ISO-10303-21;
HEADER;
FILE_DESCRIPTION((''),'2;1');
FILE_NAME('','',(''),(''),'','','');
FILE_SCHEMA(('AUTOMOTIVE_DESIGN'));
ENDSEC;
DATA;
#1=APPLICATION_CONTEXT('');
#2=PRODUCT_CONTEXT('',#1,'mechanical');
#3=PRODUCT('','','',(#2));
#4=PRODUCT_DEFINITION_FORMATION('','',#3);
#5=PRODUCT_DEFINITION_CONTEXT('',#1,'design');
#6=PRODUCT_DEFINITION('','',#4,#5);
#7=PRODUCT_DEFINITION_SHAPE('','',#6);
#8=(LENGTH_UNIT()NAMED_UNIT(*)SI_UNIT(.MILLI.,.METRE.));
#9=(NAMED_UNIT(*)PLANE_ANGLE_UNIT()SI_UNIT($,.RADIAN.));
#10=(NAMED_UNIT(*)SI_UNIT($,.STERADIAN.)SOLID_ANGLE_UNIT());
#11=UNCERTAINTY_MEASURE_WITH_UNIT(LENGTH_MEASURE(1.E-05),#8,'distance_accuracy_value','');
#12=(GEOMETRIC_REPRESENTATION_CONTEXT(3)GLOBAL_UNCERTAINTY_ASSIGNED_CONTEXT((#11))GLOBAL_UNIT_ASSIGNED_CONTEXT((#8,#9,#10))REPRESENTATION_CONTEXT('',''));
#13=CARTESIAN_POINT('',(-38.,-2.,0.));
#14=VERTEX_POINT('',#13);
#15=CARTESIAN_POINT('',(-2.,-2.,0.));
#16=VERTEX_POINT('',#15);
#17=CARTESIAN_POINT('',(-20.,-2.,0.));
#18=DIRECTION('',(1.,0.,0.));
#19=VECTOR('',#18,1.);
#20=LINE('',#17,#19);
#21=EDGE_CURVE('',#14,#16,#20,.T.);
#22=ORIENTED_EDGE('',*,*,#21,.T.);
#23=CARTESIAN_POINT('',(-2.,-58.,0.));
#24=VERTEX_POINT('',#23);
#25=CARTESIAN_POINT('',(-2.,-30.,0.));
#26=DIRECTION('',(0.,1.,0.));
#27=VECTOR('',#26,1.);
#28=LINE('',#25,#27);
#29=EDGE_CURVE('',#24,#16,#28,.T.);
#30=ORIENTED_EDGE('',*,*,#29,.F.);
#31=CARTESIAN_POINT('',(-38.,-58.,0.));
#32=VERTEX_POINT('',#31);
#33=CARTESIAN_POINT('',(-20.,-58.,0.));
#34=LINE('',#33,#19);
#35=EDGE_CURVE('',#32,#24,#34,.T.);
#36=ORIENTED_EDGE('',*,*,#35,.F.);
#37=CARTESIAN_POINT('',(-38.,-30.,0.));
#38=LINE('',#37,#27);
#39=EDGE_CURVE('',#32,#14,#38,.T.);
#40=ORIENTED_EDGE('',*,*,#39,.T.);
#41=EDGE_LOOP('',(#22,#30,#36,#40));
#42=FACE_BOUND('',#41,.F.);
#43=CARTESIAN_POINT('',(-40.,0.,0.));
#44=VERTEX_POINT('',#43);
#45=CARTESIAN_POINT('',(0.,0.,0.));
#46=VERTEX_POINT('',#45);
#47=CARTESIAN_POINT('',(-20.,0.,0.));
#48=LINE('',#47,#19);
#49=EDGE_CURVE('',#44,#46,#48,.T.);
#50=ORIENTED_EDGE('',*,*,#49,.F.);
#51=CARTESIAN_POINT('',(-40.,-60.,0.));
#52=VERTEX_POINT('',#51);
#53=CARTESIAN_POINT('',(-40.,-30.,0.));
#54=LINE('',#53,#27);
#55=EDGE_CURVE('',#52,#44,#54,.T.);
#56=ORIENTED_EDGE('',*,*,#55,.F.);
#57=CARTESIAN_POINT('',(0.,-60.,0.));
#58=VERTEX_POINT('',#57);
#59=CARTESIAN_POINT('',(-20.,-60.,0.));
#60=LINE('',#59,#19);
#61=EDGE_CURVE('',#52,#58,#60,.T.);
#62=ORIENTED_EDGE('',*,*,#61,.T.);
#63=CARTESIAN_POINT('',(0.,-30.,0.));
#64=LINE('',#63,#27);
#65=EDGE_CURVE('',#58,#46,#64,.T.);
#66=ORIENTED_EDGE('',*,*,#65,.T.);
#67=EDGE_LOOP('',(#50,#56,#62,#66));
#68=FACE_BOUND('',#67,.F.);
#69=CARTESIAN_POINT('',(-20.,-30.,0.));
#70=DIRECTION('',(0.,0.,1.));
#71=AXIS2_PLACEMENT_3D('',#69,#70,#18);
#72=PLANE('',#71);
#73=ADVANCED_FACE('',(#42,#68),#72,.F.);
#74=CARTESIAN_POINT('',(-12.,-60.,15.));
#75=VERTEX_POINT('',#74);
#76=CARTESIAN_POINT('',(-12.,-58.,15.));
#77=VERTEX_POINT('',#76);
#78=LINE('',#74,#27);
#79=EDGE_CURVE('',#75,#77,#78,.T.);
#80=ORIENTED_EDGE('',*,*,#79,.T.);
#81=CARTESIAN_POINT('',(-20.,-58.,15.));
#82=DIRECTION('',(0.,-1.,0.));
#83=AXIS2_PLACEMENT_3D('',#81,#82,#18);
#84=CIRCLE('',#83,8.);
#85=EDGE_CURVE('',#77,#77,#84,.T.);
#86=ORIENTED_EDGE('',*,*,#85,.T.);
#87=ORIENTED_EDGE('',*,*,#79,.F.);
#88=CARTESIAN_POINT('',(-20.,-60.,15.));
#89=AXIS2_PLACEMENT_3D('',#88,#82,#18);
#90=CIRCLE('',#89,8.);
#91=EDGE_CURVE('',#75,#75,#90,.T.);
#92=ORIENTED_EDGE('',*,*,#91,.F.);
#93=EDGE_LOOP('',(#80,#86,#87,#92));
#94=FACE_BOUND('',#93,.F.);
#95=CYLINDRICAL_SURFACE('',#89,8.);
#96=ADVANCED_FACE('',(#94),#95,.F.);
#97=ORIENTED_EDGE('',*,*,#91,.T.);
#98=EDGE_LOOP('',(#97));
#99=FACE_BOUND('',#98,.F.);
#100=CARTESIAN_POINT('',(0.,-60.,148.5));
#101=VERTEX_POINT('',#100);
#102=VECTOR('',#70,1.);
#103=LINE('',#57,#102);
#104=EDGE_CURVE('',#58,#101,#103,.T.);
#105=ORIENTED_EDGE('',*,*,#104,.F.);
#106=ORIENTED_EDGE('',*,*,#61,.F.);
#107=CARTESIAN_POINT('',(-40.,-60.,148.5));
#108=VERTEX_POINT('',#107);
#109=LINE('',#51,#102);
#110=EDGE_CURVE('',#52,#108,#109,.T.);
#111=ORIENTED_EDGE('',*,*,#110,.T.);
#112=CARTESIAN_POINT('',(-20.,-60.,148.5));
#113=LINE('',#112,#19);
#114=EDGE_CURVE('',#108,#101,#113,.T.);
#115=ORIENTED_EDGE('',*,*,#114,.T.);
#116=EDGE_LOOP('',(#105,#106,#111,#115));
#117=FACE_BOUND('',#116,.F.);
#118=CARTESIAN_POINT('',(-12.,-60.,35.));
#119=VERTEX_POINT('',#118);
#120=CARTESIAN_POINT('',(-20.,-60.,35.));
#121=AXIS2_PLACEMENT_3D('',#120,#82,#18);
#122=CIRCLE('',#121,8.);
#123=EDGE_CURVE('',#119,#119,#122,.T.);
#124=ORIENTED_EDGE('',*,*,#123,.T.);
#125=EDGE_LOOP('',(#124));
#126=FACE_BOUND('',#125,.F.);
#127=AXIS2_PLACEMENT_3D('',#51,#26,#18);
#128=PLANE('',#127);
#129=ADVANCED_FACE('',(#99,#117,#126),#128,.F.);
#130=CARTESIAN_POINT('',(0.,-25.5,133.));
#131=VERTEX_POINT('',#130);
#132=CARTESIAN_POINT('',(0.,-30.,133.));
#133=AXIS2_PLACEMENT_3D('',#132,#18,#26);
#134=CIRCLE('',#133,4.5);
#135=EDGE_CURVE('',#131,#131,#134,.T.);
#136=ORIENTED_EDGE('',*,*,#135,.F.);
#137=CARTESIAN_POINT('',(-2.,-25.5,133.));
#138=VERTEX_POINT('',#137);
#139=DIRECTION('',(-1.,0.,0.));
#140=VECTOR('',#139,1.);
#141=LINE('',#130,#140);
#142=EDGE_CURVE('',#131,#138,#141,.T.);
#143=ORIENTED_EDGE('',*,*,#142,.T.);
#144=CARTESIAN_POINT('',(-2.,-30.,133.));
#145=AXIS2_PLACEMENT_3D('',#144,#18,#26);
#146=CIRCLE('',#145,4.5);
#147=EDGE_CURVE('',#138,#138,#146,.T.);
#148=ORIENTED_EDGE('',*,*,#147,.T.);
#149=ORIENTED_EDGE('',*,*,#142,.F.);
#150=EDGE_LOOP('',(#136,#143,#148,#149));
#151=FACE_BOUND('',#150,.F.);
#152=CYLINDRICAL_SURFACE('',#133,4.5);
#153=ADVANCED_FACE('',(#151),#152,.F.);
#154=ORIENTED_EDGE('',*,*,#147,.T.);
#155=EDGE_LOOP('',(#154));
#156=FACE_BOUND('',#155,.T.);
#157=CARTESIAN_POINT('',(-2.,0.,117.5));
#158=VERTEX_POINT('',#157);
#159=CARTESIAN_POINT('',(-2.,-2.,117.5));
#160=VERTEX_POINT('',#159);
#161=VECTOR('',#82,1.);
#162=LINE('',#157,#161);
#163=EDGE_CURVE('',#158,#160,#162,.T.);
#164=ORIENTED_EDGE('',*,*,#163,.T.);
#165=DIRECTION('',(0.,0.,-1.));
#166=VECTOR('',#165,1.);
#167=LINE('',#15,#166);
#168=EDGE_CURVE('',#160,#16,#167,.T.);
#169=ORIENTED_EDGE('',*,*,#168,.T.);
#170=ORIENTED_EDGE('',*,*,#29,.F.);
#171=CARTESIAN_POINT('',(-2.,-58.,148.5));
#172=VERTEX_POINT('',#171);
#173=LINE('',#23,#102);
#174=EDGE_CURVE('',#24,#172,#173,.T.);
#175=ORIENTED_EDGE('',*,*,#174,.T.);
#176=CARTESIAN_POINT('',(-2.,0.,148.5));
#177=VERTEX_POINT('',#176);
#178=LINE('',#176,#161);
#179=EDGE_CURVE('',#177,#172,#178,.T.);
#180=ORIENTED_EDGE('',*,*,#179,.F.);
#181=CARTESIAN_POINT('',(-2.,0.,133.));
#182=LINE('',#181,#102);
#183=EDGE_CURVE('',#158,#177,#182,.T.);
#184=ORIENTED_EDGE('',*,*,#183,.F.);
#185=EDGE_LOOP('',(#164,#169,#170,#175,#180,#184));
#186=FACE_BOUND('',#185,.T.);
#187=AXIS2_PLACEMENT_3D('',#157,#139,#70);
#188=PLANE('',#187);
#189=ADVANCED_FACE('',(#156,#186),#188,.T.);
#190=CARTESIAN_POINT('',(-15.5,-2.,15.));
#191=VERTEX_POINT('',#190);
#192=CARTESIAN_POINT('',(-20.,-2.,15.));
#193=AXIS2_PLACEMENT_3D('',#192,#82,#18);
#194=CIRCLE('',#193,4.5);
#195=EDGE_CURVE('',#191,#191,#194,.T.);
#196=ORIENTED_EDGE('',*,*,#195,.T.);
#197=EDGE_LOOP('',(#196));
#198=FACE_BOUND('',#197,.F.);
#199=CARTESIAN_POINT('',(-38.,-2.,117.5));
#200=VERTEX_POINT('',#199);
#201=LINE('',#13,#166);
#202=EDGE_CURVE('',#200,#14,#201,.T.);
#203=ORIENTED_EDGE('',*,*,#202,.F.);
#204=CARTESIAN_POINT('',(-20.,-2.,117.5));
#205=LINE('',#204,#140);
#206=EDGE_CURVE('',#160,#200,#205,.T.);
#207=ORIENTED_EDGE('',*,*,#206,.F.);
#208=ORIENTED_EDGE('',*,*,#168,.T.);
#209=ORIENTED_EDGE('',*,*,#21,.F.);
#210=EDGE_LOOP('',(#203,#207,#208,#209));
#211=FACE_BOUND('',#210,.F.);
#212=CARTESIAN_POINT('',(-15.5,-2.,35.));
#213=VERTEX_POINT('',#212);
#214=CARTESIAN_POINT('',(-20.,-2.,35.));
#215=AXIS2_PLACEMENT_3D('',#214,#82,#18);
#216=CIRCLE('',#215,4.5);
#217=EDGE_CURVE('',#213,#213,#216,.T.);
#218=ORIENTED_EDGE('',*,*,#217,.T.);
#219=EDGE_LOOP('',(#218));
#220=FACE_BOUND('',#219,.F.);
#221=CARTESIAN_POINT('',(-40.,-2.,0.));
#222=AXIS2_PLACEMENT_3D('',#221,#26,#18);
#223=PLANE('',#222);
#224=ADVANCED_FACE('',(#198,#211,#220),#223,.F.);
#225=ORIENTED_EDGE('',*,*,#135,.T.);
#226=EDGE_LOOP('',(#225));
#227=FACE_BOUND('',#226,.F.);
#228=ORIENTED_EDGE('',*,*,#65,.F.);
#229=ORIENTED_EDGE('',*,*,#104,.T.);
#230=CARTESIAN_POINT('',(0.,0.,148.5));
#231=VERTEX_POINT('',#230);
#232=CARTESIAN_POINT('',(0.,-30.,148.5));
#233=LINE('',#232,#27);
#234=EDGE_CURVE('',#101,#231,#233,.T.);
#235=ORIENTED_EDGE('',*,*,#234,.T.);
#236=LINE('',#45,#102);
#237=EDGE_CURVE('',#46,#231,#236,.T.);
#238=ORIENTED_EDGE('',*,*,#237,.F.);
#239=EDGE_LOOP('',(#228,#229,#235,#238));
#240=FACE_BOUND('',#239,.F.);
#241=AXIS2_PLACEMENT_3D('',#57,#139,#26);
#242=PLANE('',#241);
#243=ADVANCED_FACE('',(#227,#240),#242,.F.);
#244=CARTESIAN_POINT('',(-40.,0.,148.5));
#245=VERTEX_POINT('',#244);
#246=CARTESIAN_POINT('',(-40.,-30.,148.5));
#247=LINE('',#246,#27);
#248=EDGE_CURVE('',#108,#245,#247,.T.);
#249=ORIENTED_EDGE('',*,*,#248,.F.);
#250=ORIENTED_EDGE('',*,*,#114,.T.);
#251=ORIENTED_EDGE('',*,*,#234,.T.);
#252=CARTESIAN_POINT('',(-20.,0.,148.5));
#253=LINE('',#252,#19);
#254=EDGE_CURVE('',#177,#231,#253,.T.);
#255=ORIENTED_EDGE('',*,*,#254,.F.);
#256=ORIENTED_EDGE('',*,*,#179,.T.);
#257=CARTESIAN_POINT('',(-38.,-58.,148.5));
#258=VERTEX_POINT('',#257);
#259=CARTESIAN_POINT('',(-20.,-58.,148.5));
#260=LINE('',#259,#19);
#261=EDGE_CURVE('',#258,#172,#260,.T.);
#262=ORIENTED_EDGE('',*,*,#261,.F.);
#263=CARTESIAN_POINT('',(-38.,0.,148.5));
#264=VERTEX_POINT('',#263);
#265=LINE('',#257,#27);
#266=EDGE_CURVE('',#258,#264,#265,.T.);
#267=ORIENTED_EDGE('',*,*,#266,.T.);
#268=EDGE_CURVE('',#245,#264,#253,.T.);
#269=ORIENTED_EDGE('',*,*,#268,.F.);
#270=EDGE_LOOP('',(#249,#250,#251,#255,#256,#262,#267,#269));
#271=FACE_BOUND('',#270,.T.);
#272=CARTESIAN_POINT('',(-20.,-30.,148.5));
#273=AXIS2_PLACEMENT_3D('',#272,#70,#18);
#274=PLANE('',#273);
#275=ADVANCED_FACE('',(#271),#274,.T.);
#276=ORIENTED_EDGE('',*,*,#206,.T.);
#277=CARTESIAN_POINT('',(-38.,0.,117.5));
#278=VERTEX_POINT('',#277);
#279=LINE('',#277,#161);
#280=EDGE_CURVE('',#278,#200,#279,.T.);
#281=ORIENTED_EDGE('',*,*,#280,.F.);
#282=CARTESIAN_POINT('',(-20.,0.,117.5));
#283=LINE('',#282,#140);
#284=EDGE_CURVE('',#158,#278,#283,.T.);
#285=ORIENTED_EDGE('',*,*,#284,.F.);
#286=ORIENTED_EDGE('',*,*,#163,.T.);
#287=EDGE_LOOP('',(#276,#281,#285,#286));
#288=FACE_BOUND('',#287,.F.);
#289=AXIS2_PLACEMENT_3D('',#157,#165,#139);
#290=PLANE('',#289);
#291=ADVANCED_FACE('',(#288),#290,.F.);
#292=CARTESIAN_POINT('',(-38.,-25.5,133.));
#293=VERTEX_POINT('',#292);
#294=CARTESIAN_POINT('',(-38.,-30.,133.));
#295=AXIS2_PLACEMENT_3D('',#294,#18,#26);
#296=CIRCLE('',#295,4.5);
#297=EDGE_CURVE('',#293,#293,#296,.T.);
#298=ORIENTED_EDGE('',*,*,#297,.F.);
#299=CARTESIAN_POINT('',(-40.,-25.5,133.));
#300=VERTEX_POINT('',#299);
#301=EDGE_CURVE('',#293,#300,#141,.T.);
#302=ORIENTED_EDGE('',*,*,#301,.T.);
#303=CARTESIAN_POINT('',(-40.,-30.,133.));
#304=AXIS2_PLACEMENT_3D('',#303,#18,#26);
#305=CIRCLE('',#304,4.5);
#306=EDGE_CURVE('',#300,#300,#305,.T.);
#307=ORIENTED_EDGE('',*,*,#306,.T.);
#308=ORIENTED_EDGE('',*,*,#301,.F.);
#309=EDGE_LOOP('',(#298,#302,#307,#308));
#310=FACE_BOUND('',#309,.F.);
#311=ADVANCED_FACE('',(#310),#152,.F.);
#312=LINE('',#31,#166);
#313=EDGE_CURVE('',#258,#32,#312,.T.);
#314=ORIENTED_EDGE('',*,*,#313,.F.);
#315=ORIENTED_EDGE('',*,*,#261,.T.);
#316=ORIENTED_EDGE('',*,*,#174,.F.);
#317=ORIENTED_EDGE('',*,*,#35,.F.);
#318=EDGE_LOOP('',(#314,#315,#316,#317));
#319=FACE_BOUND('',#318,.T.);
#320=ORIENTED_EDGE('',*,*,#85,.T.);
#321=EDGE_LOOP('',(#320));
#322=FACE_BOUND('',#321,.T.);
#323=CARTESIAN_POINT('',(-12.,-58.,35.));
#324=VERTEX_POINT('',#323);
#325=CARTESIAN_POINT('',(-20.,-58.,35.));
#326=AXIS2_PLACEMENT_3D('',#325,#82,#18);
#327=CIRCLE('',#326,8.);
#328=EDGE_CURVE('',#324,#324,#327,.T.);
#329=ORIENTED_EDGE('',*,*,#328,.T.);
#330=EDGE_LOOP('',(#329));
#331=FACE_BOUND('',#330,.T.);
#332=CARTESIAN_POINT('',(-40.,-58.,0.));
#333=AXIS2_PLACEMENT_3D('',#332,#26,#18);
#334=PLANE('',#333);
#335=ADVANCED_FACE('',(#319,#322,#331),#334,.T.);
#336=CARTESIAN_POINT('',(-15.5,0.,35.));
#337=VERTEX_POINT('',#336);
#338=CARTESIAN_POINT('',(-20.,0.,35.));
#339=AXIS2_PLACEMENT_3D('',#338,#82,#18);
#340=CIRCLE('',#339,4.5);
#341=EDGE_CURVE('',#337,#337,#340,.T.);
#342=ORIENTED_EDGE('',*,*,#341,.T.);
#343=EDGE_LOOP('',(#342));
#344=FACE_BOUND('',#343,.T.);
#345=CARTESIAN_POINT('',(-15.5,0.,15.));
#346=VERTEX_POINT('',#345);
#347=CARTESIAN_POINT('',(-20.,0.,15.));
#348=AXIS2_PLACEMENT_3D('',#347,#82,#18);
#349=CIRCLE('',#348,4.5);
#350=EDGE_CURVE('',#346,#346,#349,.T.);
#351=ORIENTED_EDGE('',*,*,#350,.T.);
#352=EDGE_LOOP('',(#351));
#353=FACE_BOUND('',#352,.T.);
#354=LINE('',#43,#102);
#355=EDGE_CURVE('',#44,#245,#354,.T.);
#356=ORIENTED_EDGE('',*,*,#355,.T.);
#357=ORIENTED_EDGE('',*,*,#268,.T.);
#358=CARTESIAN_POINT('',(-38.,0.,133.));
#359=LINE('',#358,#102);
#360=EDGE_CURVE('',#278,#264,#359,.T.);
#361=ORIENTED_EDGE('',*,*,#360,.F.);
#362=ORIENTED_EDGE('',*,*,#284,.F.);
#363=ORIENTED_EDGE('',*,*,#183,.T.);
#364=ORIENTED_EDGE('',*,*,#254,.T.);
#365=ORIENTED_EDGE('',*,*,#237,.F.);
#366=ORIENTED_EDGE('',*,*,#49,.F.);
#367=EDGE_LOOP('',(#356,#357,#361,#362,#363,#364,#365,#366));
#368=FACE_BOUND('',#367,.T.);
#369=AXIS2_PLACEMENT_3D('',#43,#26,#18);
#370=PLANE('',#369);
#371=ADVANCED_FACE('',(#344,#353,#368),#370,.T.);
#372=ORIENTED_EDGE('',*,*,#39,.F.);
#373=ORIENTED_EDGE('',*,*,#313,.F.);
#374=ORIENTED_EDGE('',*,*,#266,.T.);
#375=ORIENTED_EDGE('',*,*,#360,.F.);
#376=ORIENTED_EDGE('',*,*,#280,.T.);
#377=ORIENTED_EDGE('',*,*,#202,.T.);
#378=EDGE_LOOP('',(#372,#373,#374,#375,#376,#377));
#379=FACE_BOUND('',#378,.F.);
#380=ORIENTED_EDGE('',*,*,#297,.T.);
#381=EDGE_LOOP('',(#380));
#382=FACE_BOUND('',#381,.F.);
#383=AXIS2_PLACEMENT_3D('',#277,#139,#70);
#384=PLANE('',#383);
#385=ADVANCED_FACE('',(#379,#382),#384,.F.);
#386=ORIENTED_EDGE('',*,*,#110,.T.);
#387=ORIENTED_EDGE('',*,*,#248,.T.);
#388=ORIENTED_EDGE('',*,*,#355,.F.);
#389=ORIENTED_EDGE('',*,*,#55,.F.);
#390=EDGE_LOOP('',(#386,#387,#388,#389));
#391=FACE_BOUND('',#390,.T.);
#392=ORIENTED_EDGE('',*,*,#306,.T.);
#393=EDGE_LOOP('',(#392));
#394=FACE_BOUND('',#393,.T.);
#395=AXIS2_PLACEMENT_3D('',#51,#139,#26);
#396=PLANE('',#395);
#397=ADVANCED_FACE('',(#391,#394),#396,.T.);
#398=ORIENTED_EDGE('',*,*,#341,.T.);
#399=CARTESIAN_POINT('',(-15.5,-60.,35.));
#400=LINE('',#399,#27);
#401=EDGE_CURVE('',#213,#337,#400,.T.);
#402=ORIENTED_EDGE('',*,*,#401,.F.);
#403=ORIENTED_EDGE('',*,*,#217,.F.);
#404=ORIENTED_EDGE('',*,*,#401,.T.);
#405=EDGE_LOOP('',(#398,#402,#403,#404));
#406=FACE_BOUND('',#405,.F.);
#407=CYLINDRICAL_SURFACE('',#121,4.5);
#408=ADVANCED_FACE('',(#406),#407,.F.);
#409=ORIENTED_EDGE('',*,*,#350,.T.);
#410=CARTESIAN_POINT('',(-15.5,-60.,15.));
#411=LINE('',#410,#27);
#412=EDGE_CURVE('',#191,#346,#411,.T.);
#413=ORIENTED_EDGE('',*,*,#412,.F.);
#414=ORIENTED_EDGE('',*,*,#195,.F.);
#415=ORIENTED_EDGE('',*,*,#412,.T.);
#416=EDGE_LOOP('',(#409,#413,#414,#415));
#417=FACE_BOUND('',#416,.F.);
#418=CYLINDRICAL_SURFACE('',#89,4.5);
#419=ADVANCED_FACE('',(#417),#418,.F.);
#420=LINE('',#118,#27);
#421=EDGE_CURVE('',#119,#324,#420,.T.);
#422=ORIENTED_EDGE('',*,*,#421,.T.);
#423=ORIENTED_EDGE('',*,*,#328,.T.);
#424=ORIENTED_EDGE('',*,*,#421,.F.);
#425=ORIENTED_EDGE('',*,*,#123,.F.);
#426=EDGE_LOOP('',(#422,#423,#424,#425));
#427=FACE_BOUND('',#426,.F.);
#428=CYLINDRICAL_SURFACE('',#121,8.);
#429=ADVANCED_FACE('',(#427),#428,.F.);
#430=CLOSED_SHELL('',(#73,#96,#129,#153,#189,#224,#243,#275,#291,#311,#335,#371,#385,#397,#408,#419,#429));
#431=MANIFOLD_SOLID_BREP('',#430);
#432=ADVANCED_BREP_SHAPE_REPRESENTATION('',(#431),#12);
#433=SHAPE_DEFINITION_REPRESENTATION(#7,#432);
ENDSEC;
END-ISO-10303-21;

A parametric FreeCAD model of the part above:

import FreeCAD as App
import Part
import Sketcher
from FreeCAD import Vector


def faces_at(feature, points):
    """Names of the faces that lie closest to the given points."""
    faces = feature.Shape.Faces
    near = lambda p: min(range(len(faces)), key=lambda i: faces[i].distToShape(Part.Vertex(*p))[0])
    return sorted({f"Face{near(p) + 1}" for p in points})


def add_polygon(sketch, points):
    """Adds a closed chain of lines whose ends are joined by coincident constraints."""
    first, n = sketch.GeometryCount, len(points)
    for a, b in zip(points, points[1:] + points[:1]):
        sketch.addGeometry(Part.LineSegment(App.Vector(*a, 0), App.Vector(*b, 0)), False)
    for i in range(n):
        sketch.addConstraint(Sketcher.Constraint("Coincident", first + i, 2, first + (i + 1) % n, 1))

doc = App.newDocument("Part")
body = doc.addObject("PartDesign::Body", "Body")

sketch1 = doc.addObject("Sketcher::SketchObject", "Sketch")
body.addObject(sketch1)
sketch1.AttachmentSupport = (doc.XY_Plane, [""])
sketch1.MapMode = "FlatFace"
add_polygon(sketch1, [(-40, 0), (-40, -60), (0, -60), (0, 0)])
sketch1.addConstraint([
    Sketcher.Constraint("Vertical", 0),
    Sketcher.Constraint("Horizontal", 1),
    Sketcher.Constraint("Vertical", 2),
    Sketcher.Constraint("Horizontal", 3),
    Sketcher.Constraint("Coincident", 2, 2, -1, 1),
    Sketcher.Constraint("DistanceX", 1, 1, 1, 2, 40.0),
    Sketcher.Constraint("DistanceY", 0, 2, 0, 1, 60.0),
])
pad1 = doc.addObject("PartDesign::Pad", "Pad")
body.addObject(pad1)
pad1.Profile = sketch1
pad1.Length = 148.5
doc.recompute()

thickness = doc.addObject("PartDesign::Thickness", "Thickness")
body.addObject(thickness)
thickness.Base = (pad1, faces_at(pad1, [(-20, -30, 148.5), (-20, -30, 0)]))
thickness.Value = 2
thickness.Reversed = True
thickness.Join = "Arc"

sketch2 = doc.addObject("Sketcher::SketchObject", "Sketch001")
body.addObject(sketch2)
sketch2.AttachmentSupport = (doc.XZ_Plane, [""])
sketch2.MapMode = "FlatFace"
add_polygon(sketch2, [(-2, 148), (-2, 118), (-38, 118), (-38, 148)])
sketch2.addConstraint([
    Sketcher.Constraint("Vertical", 0),
    Sketcher.Constraint("Horizontal", 1),
    Sketcher.Constraint("Vertical", 2),
    Sketcher.Constraint("Horizontal", 3),
    Sketcher.Constraint("DistanceX", 1, 2, 1, 1, 36.0),
    Sketcher.Constraint("DistanceY", 0, 2, 0, 1, 31.0),
    Sketcher.Constraint("DistanceX", 0, 2, -1, 1, 2.0),
    Sketcher.Constraint("DistanceY", -1, 1, 0, 2, 117.5),
])
pocket1 = doc.addObject("PartDesign::Pocket", "Pocket")
body.addObject(pocket1)
pocket1.Profile = sketch2
pocket1.Length = 2
pocket1.Reversed = True

sketch3 = doc.addObject("Sketcher::SketchObject", "Sketch002")
body.addObject(sketch3)
sketch3.AttachmentSupport = (doc.YZ_Plane, [""])
sketch3.MapMode = "FlatFace"
sketch3.addGeometry(Part.Circle(Vector(-30, 133, 0), Vector(0, 0, 1), 4.5), False)
sketch3.addConstraint([
    Sketcher.Constraint("Diameter", 0, 9.0),
    Sketcher.Constraint("DistanceX", 0, 3, -1, 1, 30.0),
    Sketcher.Constraint("DistanceY", -1, 1, 0, 3, 133.0),
])
pocket2 = doc.addObject("PartDesign::Pocket", "Pocket001")
body.addObject(pocket2)
pocket2.Profile = sketch3
pocket2.Type = "ThroughAll"

sketch4 = doc.addObject("Sketcher::SketchObject", "Sketch003")
body.addObject(sketch4)
sketch4.AttachmentSupport = (doc.XZ_Plane, [""])
sketch4.MapMode = "FlatFace"
sketch4.AttachmentOffset = App.Placement(Vector(0, 0, 60), App.Rotation())
sketch4.addGeometry([
    Part.Circle(Vector(-20, 35, 0), Vector(0, 0, 1), 4.5),
    Part.Circle(Vector(-20, 15, 0), Vector(0, 0, 1), 4.5),
], False)
sketch4.addConstraint([
    Sketcher.Constraint("Equal", 0, 1),
    Sketcher.Constraint("Vertical", 0, 3, 1, 3),
    Sketcher.Constraint("Diameter", 0, 9.0),
    Sketcher.Constraint("DistanceX", 0, 3, -1, 1, 20.0),
    Sketcher.Constraint("DistanceY", -1, 1, 0, 3, 35.0),
    Sketcher.Constraint("DistanceY", -1, 1, 1, 3, 15.0),
])
pocket3 = doc.addObject("PartDesign::Pocket", "Pocket002")
body.addObject(pocket3)
pocket3.Profile = sketch4
pocket3.Type = "ThroughAll"

sketch5 = doc.addObject("Sketcher::SketchObject", "Sketch004")
body.addObject(sketch5)
sketch5.AttachmentSupport = (doc.XZ_Plane, [""])
sketch5.MapMode = "FlatFace"
sketch5.AttachmentOffset = App.Placement(Vector(0, 0, 60), App.Rotation())
sketch5.addGeometry([
    Part.Circle(Vector(-20, 35, 0), Vector(0, 0, 1), 8),
    Part.Circle(Vector(-20, 35, 0), Vector(0, 0, 1), 4.5),
    Part.Circle(Vector(-20, 15, 0), Vector(0, 0, 1), 8),
    Part.Circle(Vector(-20, 15, 0), Vector(0, 0, 1), 4.5),
], False)
sketch5.addConstraint([
    Sketcher.Constraint("Coincident", 1, 3, 0, 3),
    Sketcher.Constraint("Coincident", 3, 3, 2, 3),
    Sketcher.Constraint("Equal", 0, 2),
    Sketcher.Constraint("Equal", 1, 3),
    Sketcher.Constraint("Vertical", 1, 3, 2, 3),
    Sketcher.Constraint("Diameter", 0, 16.0),
    Sketcher.Constraint("Diameter", 1, 9.0),
    Sketcher.Constraint("DistanceX", 0, 3, -1, 1, 20.0),
    Sketcher.Constraint("DistanceY", -1, 1, 0, 3, 35.0),
    Sketcher.Constraint("DistanceY", -1, 1, 2, 3, 15.0),
])
pocket4 = doc.addObject("PartDesign::Pocket", "Pocket003")
body.addObject(pocket4)
pocket4.Profile = sketch5
pocket4.Length = 2

doc.recompute()
